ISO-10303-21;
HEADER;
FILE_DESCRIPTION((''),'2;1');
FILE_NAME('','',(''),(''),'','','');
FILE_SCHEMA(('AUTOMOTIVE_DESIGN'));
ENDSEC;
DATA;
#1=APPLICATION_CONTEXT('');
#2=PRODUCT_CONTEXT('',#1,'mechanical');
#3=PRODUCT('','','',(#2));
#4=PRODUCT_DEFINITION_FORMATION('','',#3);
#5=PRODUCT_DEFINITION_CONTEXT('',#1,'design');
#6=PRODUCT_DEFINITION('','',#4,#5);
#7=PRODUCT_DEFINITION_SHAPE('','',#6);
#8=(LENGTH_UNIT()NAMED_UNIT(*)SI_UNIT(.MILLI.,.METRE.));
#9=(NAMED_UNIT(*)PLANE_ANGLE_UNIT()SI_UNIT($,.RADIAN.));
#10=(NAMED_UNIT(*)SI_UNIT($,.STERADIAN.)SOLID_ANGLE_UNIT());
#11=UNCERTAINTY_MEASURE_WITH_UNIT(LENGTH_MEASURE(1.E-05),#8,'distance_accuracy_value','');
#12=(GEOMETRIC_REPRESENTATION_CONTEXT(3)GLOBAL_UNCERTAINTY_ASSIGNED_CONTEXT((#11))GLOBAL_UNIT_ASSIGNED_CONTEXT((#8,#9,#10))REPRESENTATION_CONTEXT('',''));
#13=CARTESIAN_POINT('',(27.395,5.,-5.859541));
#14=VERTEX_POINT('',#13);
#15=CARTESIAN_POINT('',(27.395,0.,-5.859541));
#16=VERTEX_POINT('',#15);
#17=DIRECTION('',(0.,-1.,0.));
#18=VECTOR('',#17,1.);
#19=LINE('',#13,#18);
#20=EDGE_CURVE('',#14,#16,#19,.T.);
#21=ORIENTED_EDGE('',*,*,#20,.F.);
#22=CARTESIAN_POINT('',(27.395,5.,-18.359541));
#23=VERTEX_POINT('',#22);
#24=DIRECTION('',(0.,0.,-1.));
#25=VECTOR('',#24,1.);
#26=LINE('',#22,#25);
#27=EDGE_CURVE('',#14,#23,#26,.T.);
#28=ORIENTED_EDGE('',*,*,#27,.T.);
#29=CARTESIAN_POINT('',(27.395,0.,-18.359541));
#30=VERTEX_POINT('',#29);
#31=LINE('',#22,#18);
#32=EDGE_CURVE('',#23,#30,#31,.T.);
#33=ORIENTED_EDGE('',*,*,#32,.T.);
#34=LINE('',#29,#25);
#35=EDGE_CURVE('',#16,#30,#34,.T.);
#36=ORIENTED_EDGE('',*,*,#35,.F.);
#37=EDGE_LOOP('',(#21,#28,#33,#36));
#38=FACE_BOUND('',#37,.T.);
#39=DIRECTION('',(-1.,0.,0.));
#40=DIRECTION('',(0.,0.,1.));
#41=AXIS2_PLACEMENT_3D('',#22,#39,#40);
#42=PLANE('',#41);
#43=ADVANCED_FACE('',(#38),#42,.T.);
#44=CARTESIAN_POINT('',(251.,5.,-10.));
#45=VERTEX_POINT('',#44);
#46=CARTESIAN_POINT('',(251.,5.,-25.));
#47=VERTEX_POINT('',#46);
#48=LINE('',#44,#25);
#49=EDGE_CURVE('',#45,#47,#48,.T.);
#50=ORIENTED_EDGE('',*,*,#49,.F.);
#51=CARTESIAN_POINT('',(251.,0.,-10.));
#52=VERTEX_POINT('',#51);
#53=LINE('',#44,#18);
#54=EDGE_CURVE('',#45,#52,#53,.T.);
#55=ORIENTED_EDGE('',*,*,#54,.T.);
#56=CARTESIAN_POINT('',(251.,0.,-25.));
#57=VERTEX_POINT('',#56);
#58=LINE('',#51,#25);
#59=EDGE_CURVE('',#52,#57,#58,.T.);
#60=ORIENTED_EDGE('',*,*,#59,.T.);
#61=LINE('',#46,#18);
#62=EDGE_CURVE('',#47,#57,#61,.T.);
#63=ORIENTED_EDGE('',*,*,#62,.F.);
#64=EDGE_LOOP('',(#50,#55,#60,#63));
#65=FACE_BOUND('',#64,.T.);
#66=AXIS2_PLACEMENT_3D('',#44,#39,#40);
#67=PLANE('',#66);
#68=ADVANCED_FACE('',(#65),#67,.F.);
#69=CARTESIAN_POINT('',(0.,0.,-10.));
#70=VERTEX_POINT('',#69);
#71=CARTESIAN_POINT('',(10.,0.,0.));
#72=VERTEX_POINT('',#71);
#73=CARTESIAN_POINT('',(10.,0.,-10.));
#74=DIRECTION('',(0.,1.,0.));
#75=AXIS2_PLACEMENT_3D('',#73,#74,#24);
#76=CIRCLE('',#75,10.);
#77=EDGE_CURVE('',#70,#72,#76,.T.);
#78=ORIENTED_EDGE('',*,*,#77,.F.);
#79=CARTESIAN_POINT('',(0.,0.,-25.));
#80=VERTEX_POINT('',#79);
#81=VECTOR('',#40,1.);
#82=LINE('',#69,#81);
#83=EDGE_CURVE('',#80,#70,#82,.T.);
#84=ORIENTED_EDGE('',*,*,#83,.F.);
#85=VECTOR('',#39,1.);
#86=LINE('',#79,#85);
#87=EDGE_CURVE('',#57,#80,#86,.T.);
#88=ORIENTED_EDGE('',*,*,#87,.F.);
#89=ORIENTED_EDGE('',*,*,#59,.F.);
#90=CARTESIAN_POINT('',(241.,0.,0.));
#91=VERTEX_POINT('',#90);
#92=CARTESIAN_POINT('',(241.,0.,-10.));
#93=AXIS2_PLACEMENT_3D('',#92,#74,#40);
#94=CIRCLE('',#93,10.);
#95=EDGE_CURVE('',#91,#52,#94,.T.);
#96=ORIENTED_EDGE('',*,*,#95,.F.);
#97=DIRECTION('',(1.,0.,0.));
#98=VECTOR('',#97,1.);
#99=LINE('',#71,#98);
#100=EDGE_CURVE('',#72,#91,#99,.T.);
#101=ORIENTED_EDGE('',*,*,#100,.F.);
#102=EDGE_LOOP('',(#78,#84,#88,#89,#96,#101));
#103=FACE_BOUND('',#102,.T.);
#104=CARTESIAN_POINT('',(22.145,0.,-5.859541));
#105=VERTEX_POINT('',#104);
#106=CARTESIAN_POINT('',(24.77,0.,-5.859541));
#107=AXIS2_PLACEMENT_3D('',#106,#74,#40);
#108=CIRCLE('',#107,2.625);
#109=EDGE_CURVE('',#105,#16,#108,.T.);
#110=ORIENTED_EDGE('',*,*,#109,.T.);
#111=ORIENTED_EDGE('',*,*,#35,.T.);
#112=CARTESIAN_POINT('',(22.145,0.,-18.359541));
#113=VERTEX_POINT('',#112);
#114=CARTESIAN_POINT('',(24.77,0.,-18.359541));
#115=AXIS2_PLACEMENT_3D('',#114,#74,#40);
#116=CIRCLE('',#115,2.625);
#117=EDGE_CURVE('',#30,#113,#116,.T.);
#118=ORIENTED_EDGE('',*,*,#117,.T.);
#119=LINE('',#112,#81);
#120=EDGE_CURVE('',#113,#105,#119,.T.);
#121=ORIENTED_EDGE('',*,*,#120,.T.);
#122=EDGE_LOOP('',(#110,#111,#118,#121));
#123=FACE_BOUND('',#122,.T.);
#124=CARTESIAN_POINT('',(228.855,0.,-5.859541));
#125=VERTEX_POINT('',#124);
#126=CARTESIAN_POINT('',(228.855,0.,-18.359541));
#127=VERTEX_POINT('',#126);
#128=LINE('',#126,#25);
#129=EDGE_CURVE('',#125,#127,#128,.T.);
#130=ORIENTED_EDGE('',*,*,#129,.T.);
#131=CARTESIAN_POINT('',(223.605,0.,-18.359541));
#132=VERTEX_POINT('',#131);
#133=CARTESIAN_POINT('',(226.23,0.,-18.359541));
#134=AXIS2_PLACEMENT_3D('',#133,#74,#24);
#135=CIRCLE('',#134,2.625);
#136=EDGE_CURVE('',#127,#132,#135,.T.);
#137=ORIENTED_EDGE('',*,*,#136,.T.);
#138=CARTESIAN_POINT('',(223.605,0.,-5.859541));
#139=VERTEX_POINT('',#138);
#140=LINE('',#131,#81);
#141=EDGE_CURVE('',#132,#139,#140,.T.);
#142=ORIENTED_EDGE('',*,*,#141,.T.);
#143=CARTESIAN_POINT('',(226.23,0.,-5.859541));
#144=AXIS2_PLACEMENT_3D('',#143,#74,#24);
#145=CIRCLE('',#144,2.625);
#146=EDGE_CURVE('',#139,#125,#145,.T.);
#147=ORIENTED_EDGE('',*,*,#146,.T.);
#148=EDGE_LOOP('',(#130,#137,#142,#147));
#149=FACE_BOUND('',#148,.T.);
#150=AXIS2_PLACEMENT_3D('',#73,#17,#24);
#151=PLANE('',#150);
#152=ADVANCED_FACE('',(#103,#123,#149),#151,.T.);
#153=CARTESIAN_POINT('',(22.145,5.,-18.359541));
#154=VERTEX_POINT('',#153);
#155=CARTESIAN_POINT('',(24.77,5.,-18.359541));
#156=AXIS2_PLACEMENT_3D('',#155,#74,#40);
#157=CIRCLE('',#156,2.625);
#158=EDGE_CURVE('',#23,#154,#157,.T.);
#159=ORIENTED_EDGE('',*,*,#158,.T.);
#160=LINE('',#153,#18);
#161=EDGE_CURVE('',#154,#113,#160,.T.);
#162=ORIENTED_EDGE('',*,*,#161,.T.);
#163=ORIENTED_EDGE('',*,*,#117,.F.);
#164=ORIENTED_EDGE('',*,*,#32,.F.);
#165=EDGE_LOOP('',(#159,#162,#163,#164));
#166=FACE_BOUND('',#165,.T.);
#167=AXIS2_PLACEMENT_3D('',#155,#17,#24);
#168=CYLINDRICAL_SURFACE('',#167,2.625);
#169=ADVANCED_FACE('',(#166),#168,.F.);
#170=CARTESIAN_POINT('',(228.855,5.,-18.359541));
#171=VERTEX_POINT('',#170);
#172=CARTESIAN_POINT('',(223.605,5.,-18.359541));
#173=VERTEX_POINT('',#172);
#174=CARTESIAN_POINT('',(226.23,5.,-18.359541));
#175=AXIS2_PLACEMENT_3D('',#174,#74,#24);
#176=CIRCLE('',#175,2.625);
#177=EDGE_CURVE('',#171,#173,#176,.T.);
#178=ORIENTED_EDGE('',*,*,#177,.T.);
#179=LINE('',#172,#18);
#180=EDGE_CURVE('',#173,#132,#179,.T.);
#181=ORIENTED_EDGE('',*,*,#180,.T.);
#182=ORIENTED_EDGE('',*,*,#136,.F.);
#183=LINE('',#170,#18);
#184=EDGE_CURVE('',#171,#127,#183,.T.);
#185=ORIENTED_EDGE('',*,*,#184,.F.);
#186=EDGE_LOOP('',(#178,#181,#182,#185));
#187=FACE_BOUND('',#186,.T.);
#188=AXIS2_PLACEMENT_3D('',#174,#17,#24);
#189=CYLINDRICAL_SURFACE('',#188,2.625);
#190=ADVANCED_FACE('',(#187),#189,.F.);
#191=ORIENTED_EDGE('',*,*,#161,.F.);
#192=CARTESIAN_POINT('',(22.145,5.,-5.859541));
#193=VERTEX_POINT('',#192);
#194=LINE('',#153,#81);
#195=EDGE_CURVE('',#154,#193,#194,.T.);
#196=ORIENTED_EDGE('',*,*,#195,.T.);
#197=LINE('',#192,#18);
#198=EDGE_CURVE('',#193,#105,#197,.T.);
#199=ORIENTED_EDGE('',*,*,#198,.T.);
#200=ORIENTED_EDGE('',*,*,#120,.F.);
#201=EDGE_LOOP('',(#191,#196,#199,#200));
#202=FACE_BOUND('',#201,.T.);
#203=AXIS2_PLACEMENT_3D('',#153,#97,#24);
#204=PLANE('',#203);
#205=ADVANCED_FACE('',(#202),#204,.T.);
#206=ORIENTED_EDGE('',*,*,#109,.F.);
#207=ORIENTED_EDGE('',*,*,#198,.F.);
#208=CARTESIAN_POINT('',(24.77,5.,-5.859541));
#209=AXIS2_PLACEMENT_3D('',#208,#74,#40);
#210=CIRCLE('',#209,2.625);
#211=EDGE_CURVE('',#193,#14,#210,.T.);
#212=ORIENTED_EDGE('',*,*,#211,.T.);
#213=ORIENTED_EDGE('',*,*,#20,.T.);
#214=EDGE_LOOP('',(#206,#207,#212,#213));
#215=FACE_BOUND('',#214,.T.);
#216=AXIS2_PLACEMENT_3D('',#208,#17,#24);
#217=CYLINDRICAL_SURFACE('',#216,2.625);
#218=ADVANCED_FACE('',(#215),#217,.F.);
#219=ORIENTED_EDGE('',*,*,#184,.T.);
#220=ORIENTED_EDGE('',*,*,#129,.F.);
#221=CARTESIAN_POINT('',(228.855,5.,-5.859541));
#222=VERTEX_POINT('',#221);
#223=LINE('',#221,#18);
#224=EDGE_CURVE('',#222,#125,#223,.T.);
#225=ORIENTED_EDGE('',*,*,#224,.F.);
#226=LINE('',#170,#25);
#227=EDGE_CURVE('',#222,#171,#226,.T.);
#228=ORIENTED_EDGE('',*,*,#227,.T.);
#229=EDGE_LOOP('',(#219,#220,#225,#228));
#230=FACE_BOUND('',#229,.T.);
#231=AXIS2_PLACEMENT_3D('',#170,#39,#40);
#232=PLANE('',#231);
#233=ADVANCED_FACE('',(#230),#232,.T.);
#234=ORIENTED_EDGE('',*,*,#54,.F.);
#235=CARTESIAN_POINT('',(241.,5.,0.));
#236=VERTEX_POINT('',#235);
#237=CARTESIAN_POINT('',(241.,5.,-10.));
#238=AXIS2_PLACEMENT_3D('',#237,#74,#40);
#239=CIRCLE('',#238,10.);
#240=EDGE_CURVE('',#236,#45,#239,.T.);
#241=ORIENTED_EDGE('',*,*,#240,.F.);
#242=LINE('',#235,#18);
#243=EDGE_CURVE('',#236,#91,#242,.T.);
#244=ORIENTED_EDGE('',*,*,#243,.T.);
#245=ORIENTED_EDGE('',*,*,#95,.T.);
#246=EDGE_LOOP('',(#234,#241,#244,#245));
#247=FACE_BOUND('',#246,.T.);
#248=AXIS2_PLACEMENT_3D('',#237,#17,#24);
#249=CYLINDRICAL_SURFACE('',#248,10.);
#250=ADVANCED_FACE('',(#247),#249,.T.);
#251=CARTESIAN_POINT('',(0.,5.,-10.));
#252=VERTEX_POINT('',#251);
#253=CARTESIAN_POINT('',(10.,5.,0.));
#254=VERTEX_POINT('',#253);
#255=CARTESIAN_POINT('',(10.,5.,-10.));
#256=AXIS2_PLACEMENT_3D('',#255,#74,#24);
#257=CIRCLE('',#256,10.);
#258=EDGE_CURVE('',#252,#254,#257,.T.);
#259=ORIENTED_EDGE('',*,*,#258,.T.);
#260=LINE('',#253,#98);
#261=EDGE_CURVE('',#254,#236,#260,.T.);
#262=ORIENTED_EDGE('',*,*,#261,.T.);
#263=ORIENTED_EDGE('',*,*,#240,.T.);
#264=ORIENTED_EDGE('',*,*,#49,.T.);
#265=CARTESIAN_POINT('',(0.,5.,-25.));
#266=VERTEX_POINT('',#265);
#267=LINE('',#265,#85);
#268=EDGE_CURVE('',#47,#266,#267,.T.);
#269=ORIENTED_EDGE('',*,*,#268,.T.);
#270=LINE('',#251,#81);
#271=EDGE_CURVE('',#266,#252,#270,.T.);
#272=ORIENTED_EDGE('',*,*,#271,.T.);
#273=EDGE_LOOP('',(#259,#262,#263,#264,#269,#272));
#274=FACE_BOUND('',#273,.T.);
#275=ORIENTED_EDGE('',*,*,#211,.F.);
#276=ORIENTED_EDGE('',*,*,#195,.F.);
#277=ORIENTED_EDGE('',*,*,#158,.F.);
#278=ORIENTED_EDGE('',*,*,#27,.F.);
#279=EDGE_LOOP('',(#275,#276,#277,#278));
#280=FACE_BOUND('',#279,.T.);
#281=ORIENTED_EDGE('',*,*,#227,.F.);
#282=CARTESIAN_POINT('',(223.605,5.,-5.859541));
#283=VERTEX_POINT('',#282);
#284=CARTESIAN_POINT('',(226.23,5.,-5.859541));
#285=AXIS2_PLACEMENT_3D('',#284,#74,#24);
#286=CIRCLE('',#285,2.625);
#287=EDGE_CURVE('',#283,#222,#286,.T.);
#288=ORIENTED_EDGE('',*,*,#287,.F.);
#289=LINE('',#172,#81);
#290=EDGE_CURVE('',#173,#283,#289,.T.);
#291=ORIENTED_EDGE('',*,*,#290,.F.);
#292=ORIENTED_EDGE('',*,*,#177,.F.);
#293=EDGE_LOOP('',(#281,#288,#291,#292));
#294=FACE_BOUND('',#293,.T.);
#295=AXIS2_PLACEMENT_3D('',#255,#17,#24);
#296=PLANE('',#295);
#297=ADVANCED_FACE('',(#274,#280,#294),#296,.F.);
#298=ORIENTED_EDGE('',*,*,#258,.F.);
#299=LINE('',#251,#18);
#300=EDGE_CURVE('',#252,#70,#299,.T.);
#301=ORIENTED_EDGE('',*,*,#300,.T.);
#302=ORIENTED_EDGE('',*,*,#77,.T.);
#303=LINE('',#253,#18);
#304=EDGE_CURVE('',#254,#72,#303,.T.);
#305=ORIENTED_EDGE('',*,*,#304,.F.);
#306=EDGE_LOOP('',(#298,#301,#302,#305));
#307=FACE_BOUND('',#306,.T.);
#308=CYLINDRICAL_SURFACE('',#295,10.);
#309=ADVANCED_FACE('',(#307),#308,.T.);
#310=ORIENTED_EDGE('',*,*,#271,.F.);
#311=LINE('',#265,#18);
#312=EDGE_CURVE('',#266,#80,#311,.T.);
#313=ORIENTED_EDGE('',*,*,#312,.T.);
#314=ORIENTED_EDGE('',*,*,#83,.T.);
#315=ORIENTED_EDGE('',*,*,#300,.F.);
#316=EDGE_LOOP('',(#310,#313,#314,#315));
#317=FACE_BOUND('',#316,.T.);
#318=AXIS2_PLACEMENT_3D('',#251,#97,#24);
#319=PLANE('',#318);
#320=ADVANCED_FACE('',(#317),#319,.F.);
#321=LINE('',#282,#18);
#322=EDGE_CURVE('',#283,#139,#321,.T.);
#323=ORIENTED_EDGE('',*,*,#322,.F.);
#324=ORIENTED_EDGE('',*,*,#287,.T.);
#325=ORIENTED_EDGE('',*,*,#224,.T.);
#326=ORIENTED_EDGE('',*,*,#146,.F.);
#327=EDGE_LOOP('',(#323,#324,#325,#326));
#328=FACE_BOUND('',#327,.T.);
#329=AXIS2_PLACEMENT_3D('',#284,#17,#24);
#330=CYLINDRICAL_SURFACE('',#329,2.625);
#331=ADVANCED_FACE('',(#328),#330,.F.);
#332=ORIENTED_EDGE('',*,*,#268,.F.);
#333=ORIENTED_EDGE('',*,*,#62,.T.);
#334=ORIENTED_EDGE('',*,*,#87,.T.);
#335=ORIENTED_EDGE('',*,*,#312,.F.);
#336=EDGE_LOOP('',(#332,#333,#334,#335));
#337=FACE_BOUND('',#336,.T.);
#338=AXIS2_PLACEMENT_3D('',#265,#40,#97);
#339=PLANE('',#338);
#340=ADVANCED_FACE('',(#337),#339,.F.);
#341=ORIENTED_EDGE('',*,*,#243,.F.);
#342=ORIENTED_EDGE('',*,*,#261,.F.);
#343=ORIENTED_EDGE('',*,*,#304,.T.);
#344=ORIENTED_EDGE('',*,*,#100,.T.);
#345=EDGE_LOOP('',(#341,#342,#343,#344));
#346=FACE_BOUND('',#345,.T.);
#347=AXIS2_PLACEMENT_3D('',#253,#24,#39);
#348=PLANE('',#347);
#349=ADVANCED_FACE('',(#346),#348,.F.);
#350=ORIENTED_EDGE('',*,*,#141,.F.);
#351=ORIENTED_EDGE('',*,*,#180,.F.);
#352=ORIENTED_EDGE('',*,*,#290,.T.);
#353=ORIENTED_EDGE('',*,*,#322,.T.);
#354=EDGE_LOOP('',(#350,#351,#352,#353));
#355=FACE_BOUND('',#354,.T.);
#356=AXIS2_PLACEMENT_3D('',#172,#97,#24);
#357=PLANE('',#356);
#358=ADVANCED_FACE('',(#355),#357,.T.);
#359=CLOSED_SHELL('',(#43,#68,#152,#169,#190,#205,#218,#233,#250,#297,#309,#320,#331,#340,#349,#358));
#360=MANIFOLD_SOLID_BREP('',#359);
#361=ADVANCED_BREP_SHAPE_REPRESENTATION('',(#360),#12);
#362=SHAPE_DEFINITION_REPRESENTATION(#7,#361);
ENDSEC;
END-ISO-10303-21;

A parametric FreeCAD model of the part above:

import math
import FreeCAD as App
import Part
import Sketcher

V = App.Vector

doc = App.newDocument("Part")
body = doc.addObject("PartDesign::Body", "Body")

sketch1 = body.newObject("Sketcher::SketchObject", "Sketch")
sketch1.AttachmentSupport = (doc.getObject("XZ_Plane"), [""])
sketch1.MapMode = "FlatFace"
sketch1.addGeometry([
    Part.LineSegment(V(10, 0, 0), V(241, 0, 0)),
    Part.ArcOfCircle(Part.Circle(V(241, -10, 0), V(0, 0, 1), 10), math.radians(0), math.radians(90)),
    Part.LineSegment(V(251, -10, 0), V(251, -25, 0)),
    Part.LineSegment(V(251, -25, 0), V(0, -25, 0)),
    Part.LineSegment(V(0, -25, 0), V(0, -10, 0)),
    Part.ArcOfCircle(Part.Circle(V(10, -10, 0), V(0, 0, 1), 10), math.radians(90), math.radians(180)),
    Part.ArcOfCircle(Part.Circle(V(24.8, -18.4, 0), V(0, 0, 1), 2.6), math.radians(180), math.radians(360)),
    Part.LineSegment(V(27.4, -18.4, 0), V(27.4, -5.9, 0)),
    Part.ArcOfCircle(Part.Circle(V(24.8, -5.9, 0), V(0, 0, 1), 2.6), math.radians(0), math.radians(180)),
    Part.LineSegment(V(22.1, -5.9, 0), V(22.1, -18.4, 0)),
    Part.LineSegment(V(223.6, -5.9, 0), V(223.6, -18.4, 0)),
    Part.ArcOfCircle(Part.Circle(V(226.2, -18.4, 0), V(0, 0, 1), 2.6), math.radians(180), math.radians(360)),
    Part.LineSegment(V(228.9, -18.4, 0), V(228.9, -5.9, 0)),
    Part.ArcOfCircle(Part.Circle(V(226.2, -5.9, 0), V(0, 0, 1), 2.6), math.radians(0), math.radians(180)),
], False)
sketch1.addConstraint([
    Sketcher.Constraint("Tangent", 0, 2, 1, 2),
    Sketcher.Constraint("Tangent", 1, 1, 2, 1),
    Sketcher.Constraint("Coincident", 2, 2, 3, 1),
    Sketcher.Constraint("Coincident", 3, 2, 4, 1),
    Sketcher.Constraint("Tangent", 4, 2, 5, 2),
    Sketcher.Constraint("Tangent", 5, 1, 0, 1),
    Sketcher.Constraint("Tangent", 6, 2, 7, 1),
    Sketcher.Constraint("Tangent", 7, 2, 8, 1),
    Sketcher.Constraint("Tangent", 8, 2, 9, 1),
    Sketcher.Constraint("Tangent", 9, 2, 6, 1),
    Sketcher.Constraint("Tangent", 10, 2, 11, 1),
    Sketcher.Constraint("Tangent", 11, 2, 12, 1),
    Sketcher.Constraint("Tangent", 12, 2, 13, 1),
    Sketcher.Constraint("Tangent", 13, 2, 10, 1),
    Sketcher.Constraint("Horizontal", 0),
    Sketcher.Constraint("Vertical", 2),
    Sketcher.Constraint("Horizontal", 3),
    Sketcher.Constraint("Vertical", 4),
    Sketcher.Constraint("Vertical", 7),
    Sketcher.Constraint("Vertical", 9),
    Sketcher.Constraint("Vertical", 10),
    Sketcher.Constraint("Vertical", 12),
    Sketcher.Constraint("Equal", 1, 5),
    Sketcher.Constraint("Equal", 8, 11),
    Sketcher.Constraint("PointOnObject", 0, 2, -1),
    Sketcher.Constraint("PointOnObject", 3, 2, -2),
    Sketcher.Constraint("Horizontal", 6, 3, 11, 3),
    Sketcher.Constraint("Horizontal", 8, 3, 13, 3),
    Sketcher.Constraint("Radius", 1, 10.0),
    Sketcher.Constraint("DistanceX", 0, 1, 0, 2, 231.0),
    Sketcher.Constraint("DistanceY", 2, 2, 2, 1, 15.0),
    Sketcher.Constraint("DistanceY", 7, 1, 7, 2, 12.5),
    Sketcher.Constraint("Radius", 6, 2.625),
    Sketcher.Constraint("DistanceX", -1, 1, 6, 3, 24.77),
    Sketcher.Constraint("DistanceX", -1, 1, 11, 3, 226.23),
    Sketcher.Constraint("DistanceY", 6, 3, -1, 1, 18.359541),
])
pad1 = body.newObject("PartDesign::Pad", "Pad")
pad1.Profile = sketch1
pad1.Length = 5
pad1.Reversed = True

doc.recompute()
